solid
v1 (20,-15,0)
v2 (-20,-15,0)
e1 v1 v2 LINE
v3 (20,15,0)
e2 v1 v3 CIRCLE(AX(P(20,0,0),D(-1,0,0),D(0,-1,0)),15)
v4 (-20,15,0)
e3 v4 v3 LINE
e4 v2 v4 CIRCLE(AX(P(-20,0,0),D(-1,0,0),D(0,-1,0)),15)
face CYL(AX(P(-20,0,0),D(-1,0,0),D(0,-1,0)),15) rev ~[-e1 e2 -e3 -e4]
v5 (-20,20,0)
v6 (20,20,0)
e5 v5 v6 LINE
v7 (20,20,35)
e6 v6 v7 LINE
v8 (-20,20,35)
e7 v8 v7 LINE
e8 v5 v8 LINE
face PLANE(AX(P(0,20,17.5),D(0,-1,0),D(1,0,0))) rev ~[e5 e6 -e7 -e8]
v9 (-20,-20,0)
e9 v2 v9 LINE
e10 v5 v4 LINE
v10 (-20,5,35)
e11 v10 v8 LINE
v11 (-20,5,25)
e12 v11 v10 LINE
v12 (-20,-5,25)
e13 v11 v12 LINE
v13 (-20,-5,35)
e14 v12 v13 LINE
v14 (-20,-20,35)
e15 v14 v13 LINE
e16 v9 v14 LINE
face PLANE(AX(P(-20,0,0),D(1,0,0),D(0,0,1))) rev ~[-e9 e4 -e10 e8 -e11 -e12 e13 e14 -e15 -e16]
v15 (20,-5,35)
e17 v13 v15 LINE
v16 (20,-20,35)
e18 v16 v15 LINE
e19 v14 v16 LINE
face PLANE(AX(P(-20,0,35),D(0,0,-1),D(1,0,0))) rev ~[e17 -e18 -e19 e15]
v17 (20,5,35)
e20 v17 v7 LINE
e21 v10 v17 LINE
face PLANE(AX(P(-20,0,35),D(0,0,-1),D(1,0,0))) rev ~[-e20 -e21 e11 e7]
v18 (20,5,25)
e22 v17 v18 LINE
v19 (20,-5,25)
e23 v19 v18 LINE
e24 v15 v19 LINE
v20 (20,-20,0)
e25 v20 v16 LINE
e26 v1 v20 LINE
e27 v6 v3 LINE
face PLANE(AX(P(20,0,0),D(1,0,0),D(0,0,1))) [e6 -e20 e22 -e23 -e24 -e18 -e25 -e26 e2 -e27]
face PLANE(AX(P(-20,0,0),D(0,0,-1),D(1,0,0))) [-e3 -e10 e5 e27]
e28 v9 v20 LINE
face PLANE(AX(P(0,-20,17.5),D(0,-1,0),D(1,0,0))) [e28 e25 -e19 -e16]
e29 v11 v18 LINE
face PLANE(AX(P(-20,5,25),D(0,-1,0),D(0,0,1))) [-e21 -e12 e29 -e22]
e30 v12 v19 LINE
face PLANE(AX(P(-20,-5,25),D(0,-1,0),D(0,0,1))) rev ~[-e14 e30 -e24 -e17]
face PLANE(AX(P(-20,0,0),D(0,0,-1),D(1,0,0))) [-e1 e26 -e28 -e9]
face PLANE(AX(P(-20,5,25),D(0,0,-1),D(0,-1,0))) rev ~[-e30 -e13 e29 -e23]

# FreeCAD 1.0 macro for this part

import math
import FreeCAD as App
import Part
import Sketcher
from FreeCAD import Vector


def add_polygon(sketch, points):
    """Adds a closed chain of lines whose ends are joined by coincident constraints."""
    first, n = sketch.GeometryCount, len(points)
    for a, b in zip(points, points[1:] + points[:1]):
        sketch.addGeometry(Part.LineSegment(App.Vector(*a, 0), App.Vector(*b, 0)), False)
    for i in range(n):
        sketch.addConstraint(Sketcher.Constraint("Coincident", first + i, 2, first + (i + 1) % n, 1))

doc = App.newDocument("Part")
body = doc.addObject("PartDesign::Body", "Body")

# Sketch on XZ plane
sketch1 = body.newObject("Sketcher::SketchObject", "Sketch")
sketch1.AttachmentSupport = (doc.getObject("XZ_Plane"), [""])
sketch1.MapMode = "FlatFace"
add_polygon(sketch1, [(-20, 35), (-20, 0), (20, 0), (20, 35)])  # lines 0-3
sketch1.addConstraint([
    Sketcher.Constraint("Vertical", 0),
    Sketcher.Constraint("Horizontal", 1),
    Sketcher.Constraint("Vertical", 2),
    Sketcher.Constraint("Horizontal", 3),
    Sketcher.Constraint("Symmetric", 0, 2, 1, 2, -1, 1),
    Sketcher.Constraint("DistanceX", 1, 1, 1, 2, 40.0),
    Sketcher.Constraint("DistanceY", 0, 2, 0, 1, 35.0),
])
pad1 = body.newObject("PartDesign::Pad", "Pad")
pad1.Profile = sketch1
pad1.Length = 40
pad1.Midplane = True

# Sketch on YZ plane
sketch2 = body.newObject("Sketcher::SketchObject", "Sketch001")
sketch2.AttachmentSupport = (doc.getObject("YZ_Plane"), [""])
sketch2.MapMode = "FlatFace"
sketch2.AttachmentOffset = App.Placement(Vector(0, 0, -20), App.Rotation())
sketch2.addGeometry([
    Part.LineSegment(Vector(15, 0, 0), Vector(-15, 0, 0)),
    Part.ArcOfCircle(Part.Circle(Vector(0, 0, 0), Vector(0, 0, 1), 15), math.radians(0), math.radians(180)),
], False)
sketch2.addConstraint([
    Sketcher.Constraint("Coincident", 0, 1, 1, 1),
    Sketcher.Constraint("Coincident", 1, 2, 0, 2),
    Sketcher.Constraint("Horizontal", 0),
    Sketcher.Constraint("Coincident", 1, 3, -1, 1),
    Sketcher.Constraint("PointOnObject", 0, 1, -1),
    Sketcher.Constraint("Radius", 1, 15.0),
])
pocket1 = body.newObject("PartDesign::Pocket", "Pocket")
pocket1.Profile = sketch2
pocket1.Length = 200
pocket1.Midplane = True

# Sketch on YZ plane
sketch3 = body.newObject("Sketcher::SketchObject", "Sketch002")
sketch3.AttachmentSupport = (doc.getObject("YZ_Plane"), [""])
sketch3.MapMode = "FlatFace"
sketch3.AttachmentOffset = App.Placement(Vector(0, 0, -20), App.Rotation())
add_polygon(sketch3, [(5, 35), (5, 25), (-5, 25), (-5, 35)])  # lines 0-3
sketch3.addConstraint([
    Sketcher.Constraint("Vertical", 0),
    Sketcher.Constraint("Horizontal", 1),
    Sketcher.Constraint("Vertical", 2),
    Sketcher.Constraint("Horizontal", 3),
    Sketcher.Constraint("Equal", 3, 0),
    Sketcher.Constraint("DistanceX", 1, 2, 1, 1, 10.0),
    Sketcher.Constraint("DistanceX", -1, 1, 0, 2, 5.0),
    Sketcher.Constraint("DistanceY", -1, 1, 0, 2, 25.0),
])
pocket2 = body.newObject("PartDesign::Pocket", "Pocket001")
pocket2.Profile = sketch3
pocket2.Type = "ThroughAll"
pocket2.Reversed = True

doc.recompute()
